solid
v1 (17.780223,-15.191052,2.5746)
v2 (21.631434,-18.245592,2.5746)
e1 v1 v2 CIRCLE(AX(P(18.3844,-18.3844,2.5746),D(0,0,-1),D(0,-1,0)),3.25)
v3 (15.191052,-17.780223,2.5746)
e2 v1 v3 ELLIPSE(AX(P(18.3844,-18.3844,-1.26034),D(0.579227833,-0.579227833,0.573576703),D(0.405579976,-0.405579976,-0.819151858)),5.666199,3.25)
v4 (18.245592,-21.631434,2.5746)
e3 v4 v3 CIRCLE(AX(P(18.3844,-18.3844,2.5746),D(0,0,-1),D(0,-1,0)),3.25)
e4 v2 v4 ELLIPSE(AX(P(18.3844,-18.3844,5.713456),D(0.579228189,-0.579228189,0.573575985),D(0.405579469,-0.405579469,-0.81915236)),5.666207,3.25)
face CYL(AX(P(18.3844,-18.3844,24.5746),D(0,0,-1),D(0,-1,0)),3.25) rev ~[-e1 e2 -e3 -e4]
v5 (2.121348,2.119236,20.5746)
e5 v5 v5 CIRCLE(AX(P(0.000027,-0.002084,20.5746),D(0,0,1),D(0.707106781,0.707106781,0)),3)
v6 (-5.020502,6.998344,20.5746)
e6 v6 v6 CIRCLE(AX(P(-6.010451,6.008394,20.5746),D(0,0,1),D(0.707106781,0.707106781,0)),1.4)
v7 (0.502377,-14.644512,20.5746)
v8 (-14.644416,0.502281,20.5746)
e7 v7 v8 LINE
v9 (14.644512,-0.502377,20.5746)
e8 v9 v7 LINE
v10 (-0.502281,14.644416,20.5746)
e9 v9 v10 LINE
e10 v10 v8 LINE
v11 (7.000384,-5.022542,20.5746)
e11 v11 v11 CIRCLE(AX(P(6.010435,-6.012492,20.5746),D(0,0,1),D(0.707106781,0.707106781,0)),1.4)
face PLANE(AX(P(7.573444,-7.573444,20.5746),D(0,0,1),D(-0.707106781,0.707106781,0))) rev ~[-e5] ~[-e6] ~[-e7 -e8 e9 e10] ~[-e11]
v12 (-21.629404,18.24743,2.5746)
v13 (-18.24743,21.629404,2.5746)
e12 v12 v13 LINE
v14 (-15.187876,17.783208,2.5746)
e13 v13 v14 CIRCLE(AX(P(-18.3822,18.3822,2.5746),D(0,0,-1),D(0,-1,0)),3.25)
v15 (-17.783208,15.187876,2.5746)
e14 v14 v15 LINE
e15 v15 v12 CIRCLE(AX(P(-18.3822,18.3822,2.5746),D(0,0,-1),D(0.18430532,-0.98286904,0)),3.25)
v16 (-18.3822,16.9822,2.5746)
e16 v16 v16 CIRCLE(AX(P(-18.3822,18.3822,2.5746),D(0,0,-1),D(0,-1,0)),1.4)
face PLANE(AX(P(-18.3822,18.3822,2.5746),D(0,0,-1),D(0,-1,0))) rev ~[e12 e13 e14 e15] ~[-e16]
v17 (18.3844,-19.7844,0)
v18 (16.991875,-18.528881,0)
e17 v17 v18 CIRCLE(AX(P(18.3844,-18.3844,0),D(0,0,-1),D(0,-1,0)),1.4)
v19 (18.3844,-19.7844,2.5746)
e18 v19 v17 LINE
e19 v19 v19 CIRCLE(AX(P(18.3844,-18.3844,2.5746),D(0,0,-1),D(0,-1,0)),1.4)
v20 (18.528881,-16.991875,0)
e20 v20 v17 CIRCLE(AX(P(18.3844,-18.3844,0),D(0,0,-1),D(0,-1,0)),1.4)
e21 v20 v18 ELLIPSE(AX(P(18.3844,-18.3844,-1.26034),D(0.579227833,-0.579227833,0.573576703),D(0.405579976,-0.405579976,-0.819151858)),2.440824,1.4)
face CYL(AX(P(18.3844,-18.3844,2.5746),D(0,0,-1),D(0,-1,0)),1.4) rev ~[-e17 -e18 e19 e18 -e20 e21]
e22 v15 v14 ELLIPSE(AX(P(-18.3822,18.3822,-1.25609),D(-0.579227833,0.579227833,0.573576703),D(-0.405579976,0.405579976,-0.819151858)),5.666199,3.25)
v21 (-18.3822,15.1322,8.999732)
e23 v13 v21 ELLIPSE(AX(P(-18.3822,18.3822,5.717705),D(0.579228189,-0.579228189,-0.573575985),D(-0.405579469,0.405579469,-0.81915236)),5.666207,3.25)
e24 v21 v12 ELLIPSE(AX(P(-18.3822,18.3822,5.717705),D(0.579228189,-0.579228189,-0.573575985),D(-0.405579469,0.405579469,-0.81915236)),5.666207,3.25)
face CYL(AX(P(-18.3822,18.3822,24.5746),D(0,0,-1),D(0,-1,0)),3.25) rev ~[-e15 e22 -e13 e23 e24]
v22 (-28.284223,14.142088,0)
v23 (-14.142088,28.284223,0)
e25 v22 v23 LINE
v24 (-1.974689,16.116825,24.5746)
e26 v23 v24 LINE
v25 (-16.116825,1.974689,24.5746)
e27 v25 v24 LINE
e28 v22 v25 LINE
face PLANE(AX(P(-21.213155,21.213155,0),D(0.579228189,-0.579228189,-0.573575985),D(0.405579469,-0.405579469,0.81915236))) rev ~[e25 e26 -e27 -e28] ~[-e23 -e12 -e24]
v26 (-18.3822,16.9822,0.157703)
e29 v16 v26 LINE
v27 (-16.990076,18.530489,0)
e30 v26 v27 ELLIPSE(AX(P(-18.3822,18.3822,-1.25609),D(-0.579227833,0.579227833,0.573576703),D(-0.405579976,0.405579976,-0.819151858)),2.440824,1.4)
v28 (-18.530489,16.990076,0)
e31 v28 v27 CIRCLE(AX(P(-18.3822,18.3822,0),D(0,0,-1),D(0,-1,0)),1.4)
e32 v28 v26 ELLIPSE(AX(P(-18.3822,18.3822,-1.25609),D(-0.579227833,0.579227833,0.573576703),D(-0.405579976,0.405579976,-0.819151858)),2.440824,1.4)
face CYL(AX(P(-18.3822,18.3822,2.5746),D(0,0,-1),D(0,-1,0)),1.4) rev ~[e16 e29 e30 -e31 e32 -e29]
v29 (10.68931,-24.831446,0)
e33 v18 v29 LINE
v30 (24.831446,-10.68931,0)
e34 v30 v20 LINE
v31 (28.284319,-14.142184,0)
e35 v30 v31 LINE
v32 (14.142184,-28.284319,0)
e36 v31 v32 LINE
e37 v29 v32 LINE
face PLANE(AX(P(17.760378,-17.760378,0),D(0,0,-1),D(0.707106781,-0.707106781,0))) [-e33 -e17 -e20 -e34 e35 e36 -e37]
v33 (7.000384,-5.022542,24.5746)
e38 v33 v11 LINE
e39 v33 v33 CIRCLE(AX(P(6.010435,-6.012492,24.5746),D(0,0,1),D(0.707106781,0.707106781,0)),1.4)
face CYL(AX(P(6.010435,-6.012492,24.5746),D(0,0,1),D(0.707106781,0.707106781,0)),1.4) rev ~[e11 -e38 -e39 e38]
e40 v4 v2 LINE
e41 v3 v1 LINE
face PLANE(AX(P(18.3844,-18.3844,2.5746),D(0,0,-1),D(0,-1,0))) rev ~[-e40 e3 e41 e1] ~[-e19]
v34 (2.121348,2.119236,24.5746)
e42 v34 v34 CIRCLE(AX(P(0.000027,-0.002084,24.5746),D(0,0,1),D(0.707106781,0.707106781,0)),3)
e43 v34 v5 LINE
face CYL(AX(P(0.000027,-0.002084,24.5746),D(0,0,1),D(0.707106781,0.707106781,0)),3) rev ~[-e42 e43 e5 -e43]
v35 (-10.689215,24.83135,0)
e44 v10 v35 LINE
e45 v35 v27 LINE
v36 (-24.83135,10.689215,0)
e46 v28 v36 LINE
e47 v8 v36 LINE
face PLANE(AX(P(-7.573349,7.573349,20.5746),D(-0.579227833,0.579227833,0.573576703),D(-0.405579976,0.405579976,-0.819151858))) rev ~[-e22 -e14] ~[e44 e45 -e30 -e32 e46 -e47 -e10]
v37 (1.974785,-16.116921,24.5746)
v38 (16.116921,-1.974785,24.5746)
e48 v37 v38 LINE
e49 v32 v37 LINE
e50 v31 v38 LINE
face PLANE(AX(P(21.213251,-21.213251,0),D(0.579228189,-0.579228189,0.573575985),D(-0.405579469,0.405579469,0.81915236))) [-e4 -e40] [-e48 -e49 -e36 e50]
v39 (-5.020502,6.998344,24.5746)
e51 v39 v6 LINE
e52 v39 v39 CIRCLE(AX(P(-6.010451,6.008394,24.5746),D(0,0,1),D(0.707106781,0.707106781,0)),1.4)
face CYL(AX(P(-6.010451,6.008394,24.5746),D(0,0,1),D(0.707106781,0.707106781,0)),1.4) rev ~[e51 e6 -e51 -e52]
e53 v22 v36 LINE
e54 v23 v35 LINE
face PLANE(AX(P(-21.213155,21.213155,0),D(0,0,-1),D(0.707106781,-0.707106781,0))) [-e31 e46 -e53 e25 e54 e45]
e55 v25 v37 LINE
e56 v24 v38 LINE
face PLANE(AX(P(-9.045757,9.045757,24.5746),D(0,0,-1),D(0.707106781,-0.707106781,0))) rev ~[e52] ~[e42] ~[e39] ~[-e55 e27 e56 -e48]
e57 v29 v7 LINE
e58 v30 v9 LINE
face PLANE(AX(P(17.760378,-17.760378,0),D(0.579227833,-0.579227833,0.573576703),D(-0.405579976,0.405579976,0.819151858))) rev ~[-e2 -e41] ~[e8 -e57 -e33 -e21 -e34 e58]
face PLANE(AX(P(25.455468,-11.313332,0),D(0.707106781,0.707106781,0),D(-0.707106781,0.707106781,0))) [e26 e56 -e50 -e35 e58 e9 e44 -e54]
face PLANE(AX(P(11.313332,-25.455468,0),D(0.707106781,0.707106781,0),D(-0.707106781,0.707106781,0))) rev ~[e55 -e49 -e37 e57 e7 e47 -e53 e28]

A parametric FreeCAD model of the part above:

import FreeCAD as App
import Part
import Sketcher
from FreeCAD import Vector
Q = App.Units.Quantity


def add_polygon(sketch, points):
    """Adds a closed chain of lines whose ends are joined by coincident constraints."""
    first, n = sketch.GeometryCount, len(points)
    for a, b in zip(points, points[1:] + points[:1]):
        sketch.addGeometry(Part.LineSegment(App.Vector(*a, 0), App.Vector(*b, 0)), False)
    for i in range(n):
        sketch.addConstraint(Sketcher.Constraint("Coincident", first + i, 2, first + (i + 1) % n, 1))

doc = App.newDocument("Part")
body = doc.addObject("PartDesign::Body", "Body")

sketch1 = body.newObject("Sketcher::SketchObject", "Sketch")
sketch1.Placement = App.Placement(Vector(18.3844, -18.3844, 0), App.Rotation(Vector(-0.707106781, 0.707106781, 0), Vector(0, 0, 0.999999999), Vector(0.707106781, 0.707106781, 0), "ZXY"))
add_polygon(sketch1, [(51.1, 0), (56, 0), (38.8, 24.6), (13.2, 24.6), (-4, 0), (0.9, 0), (15.3, 20.6), (36.7, 20.6)])
sketch1.addConstraint(Sketcher.Constraint("Horizontal", 0))
sketch1.addConstraint(Sketcher.Constraint("Horizontal", 2))
sketch1.addConstraint(Sketcher.Constraint("Horizontal", 4))
sketch1.addConstraint(Sketcher.Constraint("Horizontal", 6))
sketch1.addConstraint(Sketcher.Constraint("PointOnObject", 0, 2, -1))
sketch1.addConstraint(Sketcher.Constraint("PointOnObject", 3, 2, -1))
sketch1.addConstraint(Sketcher.Constraint("Parallel", 3, 5))
sketch1.addConstraint(Sketcher.Constraint("Parallel", 1, 7))
sketch1.addConstraint(Sketcher.Constraint("Equal", 0, 4))
sketch1.addConstraint(Sketcher.Constraint("Equal", 1, 3))
sketch1.addConstraint(Sketcher.Constraint("Angle", 1, Q("125 deg")))
sketch1.addConstraint(Sketcher.Constraint("Distance", 1, 30.0))
sketch1.addConstraint(Sketcher.Constraint("DistanceY", 5, 2, 2, 2, 4.0))
sketch1.addConstraint(Sketcher.Constraint("DistanceX", 3, 2, 0, 2, 60.0))
sketch1.addConstraint(Sketcher.Constraint("DistanceX", 3, 2, -1, 1, 4.0006))
sketch1.addConstraint(Sketcher.Constraint("DistanceX", 0, 1, 0, 2, 4.883))
pad1 = body.newObject("PartDesign::Pad", "Pad")
pad1.Profile = sketch1
pad1.Length = 20
pad1.Midplane = True

sketch2 = body.newObject("Sketcher::SketchObject", "Sketch001")
sketch2.AttachmentSupport = (doc.getObject("XY_Plane"), [""])
sketch2.MapMode = "FlatFace"
sketch2.AttachmentOffset = App.Placement(Vector(0, 0, 24.5746), App.Rotation())
sketch2.addGeometry(Part.Circle(Vector(-18.4, 18.4, 0), Vector(0, 0, 1), 1.4), False)
sketch2.addGeometry(Part.Circle(Vector(18.4, -18.4, 0), Vector(0, 0, 1), 1.4), False)
sketch2.addConstraint(Sketcher.Constraint("Equal", 0, 1))
sketch2.addConstraint(Sketcher.Constraint("Diameter", 0, 2.8))
sketch2.addConstraint(Sketcher.Constraint("DistanceX", 0, 3, -1, 1, 18.3822))
sketch2.addConstraint(Sketcher.Constraint("DistanceY", -1, 1, 0, 3, 18.3822))
sketch2.addConstraint(Sketcher.Constraint("DistanceX", -1, 1, 1, 3, 18.3844))
sketch2.addConstraint(Sketcher.Constraint("DistanceY", 1, 3, -1, 1, 18.3844))
doc.recompute()
hole = body.newObject("PartDesign::Hole", "Hole")
hole.Profile = sketch2
hole.ThreadType = "None"
hole.Diameter = 2.8
hole.DepthType = "ThroughAll"
hole.HoleCutType = "Counterbore"
hole.HoleCutDiameter = 6.5
hole.HoleCutDepth = 22

sketch3 = body.newObject("Sketcher::SketchObject", "Sketch002")
sketch3.AttachmentSupport = (doc.getObject("XY_Plane"), [""])
sketch3.MapMode = "FlatFace"
sketch3.AttachmentOffset = App.Placement(Vector(0, 0, 24.5746), App.Rotation())
sketch3.addGeometry(Part.Circle(Vector(0, 0, 0), Vector(0, 0, 1), 3), False)
sketch3.addGeometry(Part.Circle(Vector(-6, 6, 0), Vector(0, 0, 1), 1.4), False)
sketch3.addGeometry(Part.Circle(Vector(6, -6, 0), Vector(0, 0, 1), 1.4), False)
sketch3.addConstraint(Sketcher.Constraint("Equal", 1, 2))
sketch3.addConstraint(Sketcher.Constraint("PointOnObject", 0, 3, -2))
sketch3.addConstraint(Sketcher.Constraint("Diameter", 1, 2.8))
sketch3.addConstraint(Sketcher.Constraint("Diameter", 0, 6.0))
sketch3.addConstraint(Sketcher.Constraint("DistanceY", 0, 3, -1, 1, 0.002))
sketch3.addConstraint(Sketcher.Constraint("DistanceX", 1, 3, 2, 3, 12.021))
sketch3.addConstraint(Sketcher.Constraint("DistanceY", 2, 3, 1, 3, 12.021))
sketch3.addConstraint(Sketcher.Constraint("DistanceX", 1, 3, -1, 1, 6.0105))
sketch3.addConstraint(Sketcher.Constraint("DistanceY", -1, 1, 1, 3, 6.0084))
pocket1 = body.newObject("PartDesign::Pocket", "Pocket")
pocket1.Profile = sketch3
pocket1.Length = 20

doc.recompute()
